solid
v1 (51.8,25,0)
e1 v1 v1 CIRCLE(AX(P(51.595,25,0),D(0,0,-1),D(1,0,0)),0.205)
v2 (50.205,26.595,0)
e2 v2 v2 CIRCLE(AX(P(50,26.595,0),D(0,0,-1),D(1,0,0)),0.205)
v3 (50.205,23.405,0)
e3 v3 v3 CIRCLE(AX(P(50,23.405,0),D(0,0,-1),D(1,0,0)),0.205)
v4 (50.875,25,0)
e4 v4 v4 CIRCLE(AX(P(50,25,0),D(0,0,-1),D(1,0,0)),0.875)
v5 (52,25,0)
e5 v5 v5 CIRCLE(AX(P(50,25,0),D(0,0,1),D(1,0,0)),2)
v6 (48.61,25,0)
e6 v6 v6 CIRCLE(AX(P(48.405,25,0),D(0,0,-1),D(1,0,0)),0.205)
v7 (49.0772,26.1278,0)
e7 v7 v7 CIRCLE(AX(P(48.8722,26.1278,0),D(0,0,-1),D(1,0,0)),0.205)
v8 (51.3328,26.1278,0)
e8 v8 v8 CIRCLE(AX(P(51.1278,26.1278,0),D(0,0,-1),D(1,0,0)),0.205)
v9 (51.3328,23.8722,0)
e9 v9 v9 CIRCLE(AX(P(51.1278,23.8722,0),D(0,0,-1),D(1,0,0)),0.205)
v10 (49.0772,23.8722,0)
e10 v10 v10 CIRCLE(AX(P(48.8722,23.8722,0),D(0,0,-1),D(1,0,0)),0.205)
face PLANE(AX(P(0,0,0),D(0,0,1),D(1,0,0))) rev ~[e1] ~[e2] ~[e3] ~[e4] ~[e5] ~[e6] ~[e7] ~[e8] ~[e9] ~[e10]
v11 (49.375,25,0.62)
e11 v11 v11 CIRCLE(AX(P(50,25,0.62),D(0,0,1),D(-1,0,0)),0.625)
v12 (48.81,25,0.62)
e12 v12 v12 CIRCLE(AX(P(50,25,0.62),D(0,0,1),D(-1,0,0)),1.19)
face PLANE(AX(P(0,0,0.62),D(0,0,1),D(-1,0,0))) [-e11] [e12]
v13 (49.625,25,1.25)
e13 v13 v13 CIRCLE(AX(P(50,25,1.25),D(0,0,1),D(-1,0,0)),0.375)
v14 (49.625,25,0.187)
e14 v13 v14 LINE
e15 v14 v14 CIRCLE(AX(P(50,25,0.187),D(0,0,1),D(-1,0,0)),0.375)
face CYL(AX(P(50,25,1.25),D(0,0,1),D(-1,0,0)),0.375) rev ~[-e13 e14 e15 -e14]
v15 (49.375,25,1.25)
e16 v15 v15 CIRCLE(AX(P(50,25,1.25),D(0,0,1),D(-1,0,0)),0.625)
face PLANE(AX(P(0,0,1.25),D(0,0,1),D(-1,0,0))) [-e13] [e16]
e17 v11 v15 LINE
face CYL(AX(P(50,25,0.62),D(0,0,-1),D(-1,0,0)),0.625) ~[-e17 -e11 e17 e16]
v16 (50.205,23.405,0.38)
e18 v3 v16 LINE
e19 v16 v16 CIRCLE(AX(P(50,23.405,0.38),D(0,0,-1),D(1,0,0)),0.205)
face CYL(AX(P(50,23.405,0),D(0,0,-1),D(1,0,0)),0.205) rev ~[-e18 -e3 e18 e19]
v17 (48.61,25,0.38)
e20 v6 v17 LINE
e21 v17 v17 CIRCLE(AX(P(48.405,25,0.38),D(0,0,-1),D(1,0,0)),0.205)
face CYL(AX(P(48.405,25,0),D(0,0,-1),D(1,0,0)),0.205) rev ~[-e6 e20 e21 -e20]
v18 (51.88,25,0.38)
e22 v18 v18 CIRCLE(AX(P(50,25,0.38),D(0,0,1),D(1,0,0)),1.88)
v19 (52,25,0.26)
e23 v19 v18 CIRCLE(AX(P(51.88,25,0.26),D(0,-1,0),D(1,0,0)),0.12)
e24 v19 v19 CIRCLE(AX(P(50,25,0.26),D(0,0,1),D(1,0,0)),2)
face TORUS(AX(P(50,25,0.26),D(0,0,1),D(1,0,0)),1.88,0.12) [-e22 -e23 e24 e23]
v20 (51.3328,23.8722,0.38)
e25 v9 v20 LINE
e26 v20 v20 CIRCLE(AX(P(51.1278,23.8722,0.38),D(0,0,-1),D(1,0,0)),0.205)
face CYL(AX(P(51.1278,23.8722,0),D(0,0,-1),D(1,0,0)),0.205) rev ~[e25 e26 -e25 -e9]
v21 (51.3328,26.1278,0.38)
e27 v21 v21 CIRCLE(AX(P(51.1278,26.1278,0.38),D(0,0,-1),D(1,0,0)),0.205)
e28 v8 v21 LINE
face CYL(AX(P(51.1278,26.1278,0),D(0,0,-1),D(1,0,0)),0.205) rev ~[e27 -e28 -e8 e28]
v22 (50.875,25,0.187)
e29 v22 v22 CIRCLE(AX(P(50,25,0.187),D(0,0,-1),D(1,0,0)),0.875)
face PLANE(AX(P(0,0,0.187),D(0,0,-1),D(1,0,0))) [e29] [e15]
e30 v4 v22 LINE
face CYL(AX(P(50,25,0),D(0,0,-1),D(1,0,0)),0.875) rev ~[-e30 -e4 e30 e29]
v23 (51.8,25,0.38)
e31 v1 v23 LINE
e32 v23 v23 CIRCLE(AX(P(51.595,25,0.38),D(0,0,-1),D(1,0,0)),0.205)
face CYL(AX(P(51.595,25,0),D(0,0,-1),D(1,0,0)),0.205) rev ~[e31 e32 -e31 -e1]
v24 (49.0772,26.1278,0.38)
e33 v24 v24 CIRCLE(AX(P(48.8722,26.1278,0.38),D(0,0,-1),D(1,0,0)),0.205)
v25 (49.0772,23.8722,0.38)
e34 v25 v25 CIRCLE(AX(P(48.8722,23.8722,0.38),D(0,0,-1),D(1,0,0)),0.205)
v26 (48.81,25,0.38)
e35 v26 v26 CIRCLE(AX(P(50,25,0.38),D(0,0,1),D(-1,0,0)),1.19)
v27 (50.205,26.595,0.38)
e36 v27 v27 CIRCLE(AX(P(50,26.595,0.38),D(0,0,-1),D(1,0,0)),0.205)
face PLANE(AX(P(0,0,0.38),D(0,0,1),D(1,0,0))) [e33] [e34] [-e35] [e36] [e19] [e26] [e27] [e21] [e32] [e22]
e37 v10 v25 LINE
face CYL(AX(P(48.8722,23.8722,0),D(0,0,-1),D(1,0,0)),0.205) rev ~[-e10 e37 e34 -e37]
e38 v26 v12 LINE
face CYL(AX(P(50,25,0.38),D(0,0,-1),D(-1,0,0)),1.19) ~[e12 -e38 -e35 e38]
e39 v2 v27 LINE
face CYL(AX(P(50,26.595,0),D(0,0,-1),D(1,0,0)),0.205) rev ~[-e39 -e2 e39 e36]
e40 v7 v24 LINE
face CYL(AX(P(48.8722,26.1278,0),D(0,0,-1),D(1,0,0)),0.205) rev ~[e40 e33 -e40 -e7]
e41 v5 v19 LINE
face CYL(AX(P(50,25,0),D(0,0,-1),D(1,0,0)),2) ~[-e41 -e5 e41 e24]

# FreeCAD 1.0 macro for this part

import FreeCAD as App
import Part
import Sketcher
Q = App.Units.Quantity


def edges_at(feature, points):
    """Names of the edges that pass closest to the given points."""
    edges = feature.Shape.Edges
    near = lambda p: min(range(len(edges)), key=lambda i: edges[i].distToShape(Part.Vertex(*p))[0])
    return sorted({f"Edge{near(p) + 1}" for p in points})

doc = App.newDocument("Part")
body = doc.addObject("PartDesign::Body", "Body")

# Sketch on XY plane
sketch1 = body.newObject("Sketcher::SketchObject", "Sketch")
sketch1.AttachmentSupport = (doc.getObject("XY_Plane"), [""])
sketch1.MapMode = "FlatFace"
sketch1.addGeometry(Part.Circle(App.Vector(50, 25, 0), App.Vector(0, 0, 1), 2), False)
sketch1.addConstraint([
    Sketcher.Constraint("Diameter", 0, Q("4 mm")),
    Sketcher.Constraint("DistanceX", -1, 1, 0, 3, Q("50 mm")),
    Sketcher.Constraint("DistanceY", -1, 1, 0, 3, Q("25 mm")),
])
pad1 = body.newObject("PartDesign::Pad", "Pad")
pad1.Profile = sketch1
pad1.Length = 0.38
doc.recompute()

fillet = body.newObject("PartDesign::Fillet", "Fillet")
fillet.Base = (pad1, edges_at(pad1, [(48.135, 24.277, 0.38)]))
fillet.Radius = 0.12

# Sketch on XY plane
sketch2 = body.newObject("Sketcher::SketchObject", "Sketch001")
sketch2.AttachmentSupport = (doc.getObject("XY_Plane"), [""])
sketch2.MapMode = "FlatFace"
sketch2.AttachmentOffset = App.Placement(App.Vector(0, 0, 0.38), App.Rotation())
sketch2.addGeometry(Part.Circle(App.Vector(50, 25, 0), App.Vector(0, 0, 1), 1.2), False)
sketch2.addConstraint([
    Sketcher.Constraint("Diameter", 0, Q("2.38 mm")),
    Sketcher.Constraint("DistanceX", -1, 1, 0, 3, Q("50 mm")),
    Sketcher.Constraint("DistanceY", -1, 1, 0, 3, Q("25 mm")),
])
pad2 = body.newObject("PartDesign::Pad", "Pad001")
pad2.Profile = sketch2
pad2.Length = 0.24

# Sketch on XY plane
sketch3 = body.newObject("Sketcher::SketchObject", "Sketch002")
sketch3.AttachmentSupport = (doc.getObject("XY_Plane"), [""])
sketch3.MapMode = "FlatFace"
sketch3.AttachmentOffset = App.Placement(App.Vector(0, 0, 0.62), App.Rotation())
sketch3.addGeometry(Part.Circle(App.Vector(50, 25, 0), App.Vector(0, 0, 1), 0.38), False)
sketch3.addConstraint([
    Sketcher.Constraint("Diameter", 0, Q("0.75 mm")),
    Sketcher.Constraint("DistanceX", -1, 1, 0, 3, Q("50 mm")),
    Sketcher.Constraint("DistanceY", -1, 1, 0, 3, Q("25 mm")),
])
pad3 = body.newObject("PartDesign::Pad", "Pad002")
pad3.Profile = sketch3
pad3.Length = 0.63

# Sketch on XY plane
sketch4 = body.newObject("Sketcher::SketchObject", "Sketch003")
sketch4.AttachmentSupport = (doc.getObject("XY_Plane"), [""])
sketch4.MapMode = "FlatFace"
sketch4.addGeometry(Part.Circle(App.Vector(50, 25, 0), App.Vector(0, 0, 1), 0.9), False)
sketch4.addConstraint([
    Sketcher.Constraint("Diameter", 0, Q("1.75 mm")),
    Sketcher.Constraint("DistanceX", -1, 1, 0, 3, Q("50 mm")),
    Sketcher.Constraint("DistanceY", -1, 1, 0, 3, Q("25 mm")),
])
pocket1 = body.newObject("PartDesign::Pocket", "Pocket")
pocket1.Profile = sketch4
pocket1.Length = 0.187
pocket1.Reversed = True

# Sketch on XY plane
sketch5 = body.newObject("Sketcher::SketchObject", "Sketch004")
sketch5.AttachmentSupport = (doc.getObject("XY_Plane"), [""])
sketch5.MapMode = "FlatFace"
sketch5.AttachmentOffset = App.Placement(App.Vector(0, 0, 0.62), App.Rotation())
sketch5.addGeometry([
    Part.Circle(App.Vector(50, 25, 0), App.Vector(0, 0, 1), 0.62),
    Part.Circle(App.Vector(50, 25, 0), App.Vector(0, 0, 1), 0.38),
], False)
sketch5.addConstraint([
    Sketcher.Constraint("Coincident", 1, 3, 0, 3),
    Sketcher.Constraint("Diameter", 0, Q("1.25 mm")),
    Sketcher.Constraint("Diameter", 1, Q("0.75 mm")),
    Sketcher.Constraint("DistanceX", -1, 1, 0, 3, Q("50 mm")),
    Sketcher.Constraint("DistanceY", -1, 1, 0, 3, Q("25 mm")),
])
pad4 = body.newObject("PartDesign::Pad", "Pad003")
pad4.Profile = sketch5
pad4.Length = 0.63

# Sketch on XY plane
sketch6 = body.newObject("Sketcher::SketchObject", "Sketch005")
sketch6.AttachmentSupport = (doc.getObject("XY_Plane"), [""])
sketch6.MapMode = "FlatFace"
sketch6.AttachmentOffset = App.Placement(App.Vector(0, 0, 1.25), App.Rotation())
sketch6.addGeometry(Part.Circle(App.Vector(50, 25, 0), App.Vector(0, 0, 1), 0.38), False)
sketch6.addConstraint([
    Sketcher.Constraint("Diameter", 0, Q("0.75 mm")),
    Sketcher.Constraint("DistanceX", -1, 1, 0, 3, Q("50 mm")),
    Sketcher.Constraint("DistanceY", -1, 1, 0, 3, Q("25 mm")),
])
pocket2 = body.newObject("PartDesign::Pocket", "Pocket001")
pocket2.Profile = sketch6
pocket2.Length = 1.063

# Sketch on XY plane
sketch7 = body.newObject("Sketcher::SketchObject", "Sketch006")
sketch7.AttachmentSupport = (doc.getObject("XY_Plane"), [""])
sketch7.MapMode = "FlatFace"
sketch7.addGeometry(Part.Circle(App.Vector(51.59, 25, 0), App.Vector(0, 0, 1), 0.2), False)
sketch7.addConstraint([
    Sketcher.Constraint("Diameter", 0, Q("0.41 mm")),
    Sketcher.Constraint("DistanceY", -1, 1, 0, 3, Q("25 mm")),
    Sketcher.Constraint("DistanceX", -1, 1, 0, 3, Q("51.595 mm")),
])
pocket3 = body.newObject("PartDesign::Pocket", "Pocket002")
pocket3.Profile = sketch7
pocket3.Length = 0.38
pocket3.Reversed = True

# Sketch on XY plane
sketch8 = body.newObject("Sketcher::SketchObject", "Sketch007")
sketch8.AttachmentSupport = (doc.getObject("XY_Plane"), [""])
sketch8.MapMode = "FlatFace"
sketch8.addGeometry(Part.Circle(App.Vector(51.13, 23.87, 0), App.Vector(0, 0, 1), 0.2), False)
sketch8.addConstraint([
    Sketcher.Constraint("Diameter", 0, Q("0.41 mm")),
    Sketcher.Constraint("DistanceX", -1, 1, 0, 3, Q("51.1278 mm")),
    Sketcher.Constraint("DistanceY", -1, 1, 0, 3, Q("23.8722 mm")),
])
pocket4 = body.newObject("PartDesign::Pocket", "Pocket003")
pocket4.Profile = sketch8
pocket4.Length = 0.38
pocket4.Reversed = True

# Sketch on XY plane
sketch9 = body.newObject("Sketcher::SketchObject", "Sketch008")
sketch9.AttachmentSupport = (doc.getObject("XY_Plane"), [""])
sketch9.MapMode = "FlatFace"
sketch9.addGeometry(Part.Circle(App.Vector(50, 23.41, 0), App.Vector(0, 0, 1), 0.2), False)
sketch9.addConstraint([
    Sketcher.Constraint("Diameter", 0, Q("0.41 mm")),
    Sketcher.Constraint("DistanceX", -1, 1, 0, 3, Q("50 mm")),
    Sketcher.Constraint("DistanceY", -1, 1, 0, 3, Q("23.405 mm")),
])
pocket5 = body.newObject("PartDesign::Pocket", "Pocket004")
pocket5.Profile = sketch9
pocket5.Length = 0.38
pocket5.Reversed = True

# Sketch on XY plane
sketch10 = body.newObject("Sketcher::SketchObject", "Sketch009")
sketch10.AttachmentSupport = (doc.getObject("XY_Plane"), [""])
sketch10.MapMode = "FlatFace"
sketch10.addGeometry(Part.Circle(App.Vector(48.87, 23.87, 0), App.Vector(0, 0, 1), 0.2), False)
sketch10.addConstraint([
    Sketcher.Constraint("Diameter", 0, Q("0.41 mm")),
    Sketcher.Constraint("DistanceX", -1, 1, 0, 3, Q("48.8722 mm")),
    Sketcher.Constraint("DistanceY", -1, 1, 0, 3, Q("23.8722 mm")),
])
pocket6 = body.newObject("PartDesign::Pocket", "Pocket005")
pocket6.Profile = sketch10
pocket6.Length = 0.38
pocket6.Reversed = True

# Sketch on XY plane
sketch11 = body.newObject("Sketcher::SketchObject", "Sketch010")
sketch11.AttachmentSupport = (doc.getObject("XY_Plane"), [""])
sketch11.MapMode = "FlatFace"
sketch11.addGeometry(Part.Circle(App.Vector(48.41, 25, 0), App.Vector(0, 0, 1), 0.2), False)
sketch11.addConstraint([
    Sketcher.Constraint("Diameter", 0, Q("0.41 mm")),
    Sketcher.Constraint("DistanceY", -1, 1, 0, 3, Q("25 mm")),
    Sketcher.Constraint("DistanceX", -1, 1, 0, 3, Q("48.405 mm")),
])
pocket7 = body.newObject("PartDesign::Pocket", "Pocket006")
pocket7.Profile = sketch11
pocket7.Length = 0.38
pocket7.Reversed = True

# Sketch on XY plane
sketch12 = body.newObject("Sketcher::SketchObject", "Sketch011")
sketch12.AttachmentSupport = (doc.getObject("XY_Plane"), [""])
sketch12.MapMode = "FlatFace"
sketch12.addGeometry(Part.Circle(App.Vector(51.13, 26.13, 0), App.Vector(0, 0, 1), 0.2), False)
sketch12.addConstraint([
    Sketcher.Constraint("Diameter", 0, Q("0.41 mm")),
    Sketcher.Constraint("DistanceX", -1, 1, 0, 3, Q("51.1278 mm")),
    Sketcher.Constraint("DistanceY", -1, 1, 0, 3, Q("26.1278 mm")),
])
pocket8 = body.newObject("PartDesign::Pocket", "Pocket007")
pocket8.Profile = sketch12
pocket8.Length = 0.38
pocket8.Reversed = True

# Sketch on XY plane
sketch13 = body.newObject("Sketcher::SketchObject", "Sketch012")
sketch13.AttachmentSupport = (doc.getObject("XY_Plane"), [""])
sketch13.MapMode = "FlatFace"
sketch13.addGeometry(Part.Circle(App.Vector(50, 26.59, 0), App.Vector(0, 0, 1), 0.2), False)
sketch13.addConstraint([
    Sketcher.Constraint("Diameter", 0, Q("0.41 mm")),
    Sketcher.Constraint("DistanceX", -1, 1, 0, 3, Q("50 mm")),
    Sketcher.Constraint("DistanceY", -1, 1, 0, 3, Q("26.595 mm")),
])
pocket9 = body.newObject("PartDesign::Pocket", "Pocket008")
pocket9.Profile = sketch13
pocket9.Length = 0.38
pocket9.Reversed = True

# Sketch on XY plane
sketch14 = body.newObject("Sketcher::SketchObject", "Sketch013")
sketch14.AttachmentSupport = (doc.getObject("XY_Plane"), [""])
sketch14.MapMode = "FlatFace"
sketch14.addGeometry(Part.Circle(App.Vector(48.87, 26.13, 0), App.Vector(0, 0, 1), 0.2), False)
sketch14.addConstraint([
    Sketcher.Constraint("Diameter", 0, Q("0.41 mm")),
    Sketcher.Constraint("DistanceX", -1, 1, 0, 3, Q("48.8722 mm")),
    Sketcher.Constraint("DistanceY", -1, 1, 0, 3, Q("26.1278 mm")),
])
pocket10 = body.newObject("PartDesign::Pocket", "Pocket009")
pocket10.Profile = sketch14
pocket10.Length = 0.38
pocket10.Reversed = True

doc.recompute()
